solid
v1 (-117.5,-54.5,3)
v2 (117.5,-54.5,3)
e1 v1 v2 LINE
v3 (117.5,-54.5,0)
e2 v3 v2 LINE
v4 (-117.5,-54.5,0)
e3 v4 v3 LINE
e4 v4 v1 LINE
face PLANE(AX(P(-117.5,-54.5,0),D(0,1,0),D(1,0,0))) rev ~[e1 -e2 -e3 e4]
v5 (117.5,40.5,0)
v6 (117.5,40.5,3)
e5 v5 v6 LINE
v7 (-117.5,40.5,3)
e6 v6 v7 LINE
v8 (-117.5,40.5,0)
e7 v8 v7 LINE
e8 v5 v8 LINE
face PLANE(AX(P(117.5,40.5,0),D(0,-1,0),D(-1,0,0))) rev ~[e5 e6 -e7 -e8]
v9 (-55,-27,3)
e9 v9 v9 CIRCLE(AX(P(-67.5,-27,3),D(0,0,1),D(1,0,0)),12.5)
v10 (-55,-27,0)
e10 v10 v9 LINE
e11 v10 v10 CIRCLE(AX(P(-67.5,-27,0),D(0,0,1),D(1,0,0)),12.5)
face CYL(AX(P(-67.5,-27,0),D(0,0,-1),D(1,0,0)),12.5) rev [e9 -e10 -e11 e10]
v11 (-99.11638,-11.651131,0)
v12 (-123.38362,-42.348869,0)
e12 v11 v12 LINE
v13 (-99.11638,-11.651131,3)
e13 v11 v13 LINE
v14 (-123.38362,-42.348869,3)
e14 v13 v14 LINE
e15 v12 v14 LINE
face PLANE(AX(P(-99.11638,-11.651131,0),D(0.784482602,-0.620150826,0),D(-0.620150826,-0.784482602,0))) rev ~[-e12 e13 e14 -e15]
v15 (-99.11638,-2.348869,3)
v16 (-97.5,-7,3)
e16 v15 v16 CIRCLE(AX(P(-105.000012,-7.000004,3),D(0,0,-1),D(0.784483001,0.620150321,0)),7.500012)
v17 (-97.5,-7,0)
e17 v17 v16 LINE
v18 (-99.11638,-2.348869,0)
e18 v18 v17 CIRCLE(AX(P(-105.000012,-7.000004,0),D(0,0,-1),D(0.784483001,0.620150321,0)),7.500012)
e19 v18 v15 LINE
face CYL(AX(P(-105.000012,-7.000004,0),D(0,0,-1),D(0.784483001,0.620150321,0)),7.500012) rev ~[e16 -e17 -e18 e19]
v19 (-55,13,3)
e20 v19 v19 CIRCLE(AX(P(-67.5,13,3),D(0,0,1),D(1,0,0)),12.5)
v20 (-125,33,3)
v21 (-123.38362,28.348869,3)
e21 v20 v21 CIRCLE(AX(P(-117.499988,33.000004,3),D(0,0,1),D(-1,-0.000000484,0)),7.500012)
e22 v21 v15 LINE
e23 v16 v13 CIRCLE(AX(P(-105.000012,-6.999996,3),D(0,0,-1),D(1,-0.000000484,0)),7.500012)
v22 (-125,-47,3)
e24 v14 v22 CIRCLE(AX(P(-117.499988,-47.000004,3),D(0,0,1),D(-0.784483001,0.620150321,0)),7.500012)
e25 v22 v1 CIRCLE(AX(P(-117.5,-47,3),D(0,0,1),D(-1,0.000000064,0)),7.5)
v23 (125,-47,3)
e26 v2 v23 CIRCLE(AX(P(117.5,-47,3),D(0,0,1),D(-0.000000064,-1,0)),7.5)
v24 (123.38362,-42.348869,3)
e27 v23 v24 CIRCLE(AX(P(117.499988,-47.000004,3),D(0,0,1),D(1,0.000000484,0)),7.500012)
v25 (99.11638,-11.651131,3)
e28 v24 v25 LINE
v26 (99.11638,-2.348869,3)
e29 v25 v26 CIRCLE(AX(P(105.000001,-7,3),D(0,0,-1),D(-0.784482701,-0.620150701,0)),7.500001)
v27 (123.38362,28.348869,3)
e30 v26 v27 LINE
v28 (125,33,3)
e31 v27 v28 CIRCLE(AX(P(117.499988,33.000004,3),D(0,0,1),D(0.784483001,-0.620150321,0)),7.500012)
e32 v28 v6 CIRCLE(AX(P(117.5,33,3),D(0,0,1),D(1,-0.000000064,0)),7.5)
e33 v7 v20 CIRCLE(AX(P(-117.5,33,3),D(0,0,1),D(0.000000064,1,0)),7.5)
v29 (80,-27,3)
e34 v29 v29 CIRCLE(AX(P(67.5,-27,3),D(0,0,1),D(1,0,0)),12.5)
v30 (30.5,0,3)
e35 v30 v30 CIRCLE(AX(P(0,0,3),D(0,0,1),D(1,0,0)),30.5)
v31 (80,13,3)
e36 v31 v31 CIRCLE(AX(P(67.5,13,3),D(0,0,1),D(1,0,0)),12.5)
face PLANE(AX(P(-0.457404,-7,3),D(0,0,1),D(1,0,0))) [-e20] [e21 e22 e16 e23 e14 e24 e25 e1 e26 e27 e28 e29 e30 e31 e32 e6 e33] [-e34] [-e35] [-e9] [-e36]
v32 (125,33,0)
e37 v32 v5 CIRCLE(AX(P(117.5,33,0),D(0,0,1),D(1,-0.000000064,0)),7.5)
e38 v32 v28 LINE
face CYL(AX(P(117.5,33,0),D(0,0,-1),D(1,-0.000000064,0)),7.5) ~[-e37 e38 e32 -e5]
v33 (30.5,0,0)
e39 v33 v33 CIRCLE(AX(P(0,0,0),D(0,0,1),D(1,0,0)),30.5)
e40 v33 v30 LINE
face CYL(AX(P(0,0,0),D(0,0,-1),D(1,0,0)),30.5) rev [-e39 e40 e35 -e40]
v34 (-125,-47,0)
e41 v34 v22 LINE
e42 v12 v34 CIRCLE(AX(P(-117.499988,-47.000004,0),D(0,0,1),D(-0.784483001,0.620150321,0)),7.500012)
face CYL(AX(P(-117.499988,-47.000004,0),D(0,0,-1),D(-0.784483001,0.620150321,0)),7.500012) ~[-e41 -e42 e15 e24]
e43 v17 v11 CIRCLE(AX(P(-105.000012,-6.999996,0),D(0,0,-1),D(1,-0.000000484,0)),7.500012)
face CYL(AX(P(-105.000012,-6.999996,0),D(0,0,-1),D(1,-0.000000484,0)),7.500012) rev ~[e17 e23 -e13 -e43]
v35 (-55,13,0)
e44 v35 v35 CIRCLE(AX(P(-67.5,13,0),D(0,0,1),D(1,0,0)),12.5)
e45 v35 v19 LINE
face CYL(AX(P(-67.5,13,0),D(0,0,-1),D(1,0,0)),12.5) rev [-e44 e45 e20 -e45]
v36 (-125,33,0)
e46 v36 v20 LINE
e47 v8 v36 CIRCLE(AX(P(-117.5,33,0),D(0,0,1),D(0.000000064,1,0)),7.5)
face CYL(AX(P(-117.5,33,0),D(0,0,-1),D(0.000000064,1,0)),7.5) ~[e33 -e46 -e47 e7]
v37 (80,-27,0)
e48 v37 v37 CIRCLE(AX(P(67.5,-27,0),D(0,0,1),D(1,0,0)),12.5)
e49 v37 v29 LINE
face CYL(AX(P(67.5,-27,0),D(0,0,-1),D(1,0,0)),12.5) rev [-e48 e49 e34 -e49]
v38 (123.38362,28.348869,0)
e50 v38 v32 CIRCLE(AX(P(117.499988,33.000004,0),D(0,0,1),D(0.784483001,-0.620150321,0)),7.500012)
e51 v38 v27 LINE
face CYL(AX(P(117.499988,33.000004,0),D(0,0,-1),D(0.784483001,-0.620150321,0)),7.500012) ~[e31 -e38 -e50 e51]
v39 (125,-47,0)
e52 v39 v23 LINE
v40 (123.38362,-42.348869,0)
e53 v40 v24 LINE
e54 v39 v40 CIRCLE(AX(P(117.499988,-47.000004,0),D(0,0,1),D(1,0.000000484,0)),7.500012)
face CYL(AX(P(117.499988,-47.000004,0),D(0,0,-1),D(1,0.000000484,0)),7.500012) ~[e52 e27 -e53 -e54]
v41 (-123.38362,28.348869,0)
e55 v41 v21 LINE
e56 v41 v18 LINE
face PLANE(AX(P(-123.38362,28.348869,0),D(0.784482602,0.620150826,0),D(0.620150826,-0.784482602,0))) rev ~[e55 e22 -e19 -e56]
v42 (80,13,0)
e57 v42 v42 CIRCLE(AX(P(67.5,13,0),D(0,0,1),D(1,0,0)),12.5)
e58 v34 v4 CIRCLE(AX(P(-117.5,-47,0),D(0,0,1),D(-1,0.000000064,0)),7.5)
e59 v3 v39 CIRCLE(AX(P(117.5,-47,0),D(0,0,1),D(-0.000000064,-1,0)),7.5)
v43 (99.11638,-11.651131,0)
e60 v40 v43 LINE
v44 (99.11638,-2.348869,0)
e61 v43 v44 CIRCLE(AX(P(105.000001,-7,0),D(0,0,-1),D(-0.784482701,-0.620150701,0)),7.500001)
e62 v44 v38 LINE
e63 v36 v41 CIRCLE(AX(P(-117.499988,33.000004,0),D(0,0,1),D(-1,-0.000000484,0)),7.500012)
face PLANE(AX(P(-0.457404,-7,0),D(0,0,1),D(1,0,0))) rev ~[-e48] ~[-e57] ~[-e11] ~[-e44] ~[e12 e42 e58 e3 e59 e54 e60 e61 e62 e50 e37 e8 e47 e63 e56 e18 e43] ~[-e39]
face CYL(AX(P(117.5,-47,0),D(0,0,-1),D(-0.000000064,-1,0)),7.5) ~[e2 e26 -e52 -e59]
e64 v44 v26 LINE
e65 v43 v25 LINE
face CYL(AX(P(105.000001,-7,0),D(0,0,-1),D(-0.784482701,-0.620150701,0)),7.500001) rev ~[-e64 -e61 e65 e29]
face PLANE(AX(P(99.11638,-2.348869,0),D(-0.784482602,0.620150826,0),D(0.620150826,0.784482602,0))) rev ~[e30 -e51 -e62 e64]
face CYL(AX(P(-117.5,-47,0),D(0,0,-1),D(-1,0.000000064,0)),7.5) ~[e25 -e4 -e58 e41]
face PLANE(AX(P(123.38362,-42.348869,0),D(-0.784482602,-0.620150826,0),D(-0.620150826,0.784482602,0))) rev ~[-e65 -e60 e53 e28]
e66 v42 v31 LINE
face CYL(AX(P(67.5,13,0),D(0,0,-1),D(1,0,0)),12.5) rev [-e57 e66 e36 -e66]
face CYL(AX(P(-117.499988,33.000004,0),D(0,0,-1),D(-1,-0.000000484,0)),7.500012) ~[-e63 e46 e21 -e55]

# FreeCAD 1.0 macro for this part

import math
import FreeCAD as App
import Part
import Sketcher

doc = App.newDocument("Part")
body = doc.addObject("PartDesign::Body", "Body")

sketch1 = body.newObject("Sketcher::SketchObject", "Sketch")
sketch1.AttachmentSupport = (doc.getObject("XY_Plane"), [""])
sketch1.MapMode = "FlatFace"
sketch1.addGeometry(Part.LineSegment(App.Vector(-117.5, -54.5, 0), App.Vector(117.5, -54.5, 0)), False)
sketch1.addGeometry(Part.ArcOfCircle(Part.Circle(App.Vector(117.5, -47, 0), App.Vector(0, 0, 1), 7.5), math.radians(-90.000004), math.radians(0.000004)), False)
sketch1.addGeometry(Part.ArcOfCircle(Part.Circle(App.Vector(117.499988, -47.000004, 0), App.Vector(0, 0, 1), 7.500012), math.radians(0.000028), math.radians(38.327113)), False)
sketch1.addGeometry(Part.LineSegment(App.Vector(123.38362, -42.348869, 0), App.Vector(99.11638, -11.651131, 0)), False)
sketch1.addGeometry(Part.ArcOfCircle(Part.Circle(App.Vector(105.000001, -7, 0), App.Vector(0, 0, 1), 7.500001), math.radians(141.67286), math.radians(218.32714)), False)
sketch1.addGeometry(Part.LineSegment(App.Vector(99.11638, -2.348869, 0), App.Vector(123.38362, 28.348869, 0)), False)
sketch1.addGeometry(Part.ArcOfCircle(Part.Circle(App.Vector(117.499988, 33.000004, 0), App.Vector(0, 0, 1), 7.500012), math.radians(-38.327113), math.radians(-0.000028)), False)
sketch1.addGeometry(Part.ArcOfCircle(Part.Circle(App.Vector(117.5, 33, 0), App.Vector(0, 0, 1), 7.5), math.radians(-0.000004), math.radians(90.000004)), False)
sketch1.addGeometry(Part.LineSegment(App.Vector(117.5, 40.5, 0), App.Vector(-117.5, 40.5, 0)), False)
sketch1.addGeometry(Part.ArcOfCircle(Part.Circle(App.Vector(-117.5, 33, 0), App.Vector(0, 0, 1), 7.5), math.radians(89.999996), math.radians(180.000004)), False)
sketch1.addGeometry(Part.ArcOfCircle(Part.Circle(App.Vector(-117.499988, 33.000004, 0), App.Vector(0, 0, 1), 7.500012), math.radians(-179.999972), math.radians(-141.672887)), False)
sketch1.addGeometry(Part.LineSegment(App.Vector(-123.38362, 28.348869, 0), App.Vector(-99.11638, -2.348869, 0)), False)
sketch1.addGeometry(Part.ArcOfCircle(Part.Circle(App.Vector(-105.000012, -7.000004, 0), App.Vector(0, 0, 1), 7.500012), math.radians(0.000028), math.radians(38.327113)), False)
sketch1.addGeometry(Part.ArcOfCircle(Part.Circle(App.Vector(-105.000012, -6.999996, 0), App.Vector(0, 0, 1), 7.500012), math.radians(-38.327113), math.radians(-0.000028)), False)
sketch1.addGeometry(Part.LineSegment(App.Vector(-99.11638, -11.651131, 0), App.Vector(-123.38362, -42.348869, 0)), False)
sketch1.addGeometry(Part.ArcOfCircle(Part.Circle(App.Vector(-117.499988, -47.000004, 0), App.Vector(0, 0, 1), 7.500012), math.radians(141.672887), math.radians(179.999972)), False)
sketch1.addGeometry(Part.ArcOfCircle(Part.Circle(App.Vector(-117.5, -47, 0), App.Vector(0, 0, 1), 7.5), math.radians(179.999996), math.radians(270.000004)), False)
sketch1.addGeometry(Part.Circle(App.Vector(-67.5, -27, 0), App.Vector(0, 0, 1), 12.5), False)
sketch1.addGeometry(Part.Circle(App.Vector(67.5, -27, 0), App.Vector(0, 0, 1), 12.5), False)
sketch1.addGeometry(Part.Circle(App.Vector(-67.5, 13, 0), App.Vector(0, 0, 1), 12.5), False)
sketch1.addGeometry(Part.Circle(App.Vector(0, 0, 0), App.Vector(0, 0, 1), 30.5), False)
sketch1.addGeometry(Part.Circle(App.Vector(67.5, 13, 0), App.Vector(0, 0, 1), 12.5), False)
sketch1.addConstraint(Sketcher.Constraint("Tangent", 0, 2, 1, 1))
sketch1.addConstraint(Sketcher.Constraint("Tangent", 1, 2, 2, 1))
sketch1.addConstraint(Sketcher.Constraint("Tangent", 2, 2, 3, 1))
sketch1.addConstraint(Sketcher.Constraint("Tangent", 3, 2, 4, 2))
sketch1.addConstraint(Sketcher.Constraint("Tangent", 4, 1, 5, 1))
sketch1.addConstraint(Sketcher.Constraint("Tangent", 5, 2, 6, 1))
sketch1.addConstraint(Sketcher.Constraint("Tangent", 6, 2, 7, 1))
sketch1.addConstraint(Sketcher.Constraint("Tangent", 7, 2, 8, 1))
sketch1.addConstraint(Sketcher.Constraint("Tangent", 8, 2, 9, 1))
sketch1.addConstraint(Sketcher.Constraint("Tangent", 9, 2, 10, 1))
sketch1.addConstraint(Sketcher.Constraint("Tangent", 10, 2, 11, 1))
sketch1.addConstraint(Sketcher.Constraint("Tangent", 11, 2, 12, 2))
sketch1.addConstraint(Sketcher.Constraint("Tangent", 12, 1, 13, 2))
sketch1.addConstraint(Sketcher.Constraint("Tangent", 13, 1, 14, 1))
sketch1.addConstraint(Sketcher.Constraint("Tangent", 14, 2, 15, 1))
sketch1.addConstraint(Sketcher.Constraint("Tangent", 15, 2, 16, 1))
sketch1.addConstraint(Sketcher.Constraint("Tangent", 16, 2, 0, 1))
sketch1.addConstraint(Sketcher.Constraint("Horizontal", 0))
sketch1.addConstraint(Sketcher.Constraint("Horizontal", 8))
sketch1.addConstraint(Sketcher.Constraint("Coincident", 20, 3, -1, 1))
sketch1.addConstraint(Sketcher.Constraint("Equal", 1, 4))
sketch1.addConstraint(Sketcher.Constraint("Equal", 2, 6))
sketch1.addConstraint(Sketcher.Constraint("Equal", 4, 7))
sketch1.addConstraint(Sketcher.Constraint("Equal", 7, 9))
sketch1.addConstraint(Sketcher.Constraint("Equal", 6, 10))
sketch1.addConstraint(Sketcher.Constraint("Equal", 10, 12))
sketch1.addConstraint(Sketcher.Constraint("Equal", 12, 13))
sketch1.addConstraint(Sketcher.Constraint("Equal", 13, 15))
sketch1.addConstraint(Sketcher.Constraint("Equal", 9, 16))
sketch1.addConstraint(Sketcher.Constraint("Equal", 17, 18))
sketch1.addConstraint(Sketcher.Constraint("Equal", 18, 19))
sketch1.addConstraint(Sketcher.Constraint("Equal", 19, 21))
sketch1.addConstraint(Sketcher.Constraint("Symmetric", 17, 3, 18, 3, -2))
sketch1.addConstraint(Sketcher.Constraint("Symmetric", 19, 3, 21, 3, -2))
sketch1.addConstraint(Sketcher.Constraint("Symmetric", 6, 2, 9, 2, -2))
sketch1.addConstraint(Sketcher.Constraint("Symmetric", 4, 1, 11, 2, -2))
sketch1.addConstraint(Sketcher.Constraint("Symmetric", 3, 2, 13, 1, -2))
sketch1.addConstraint(Sketcher.Constraint("Parallel", 3, 11))
sketch1.addConstraint(Sketcher.Constraint("Horizontal", 16, 3, 1, 2))
sketch1.addConstraint(Sketcher.Constraint("Horizontal", 9, 3, 6, 2))
sketch1.addConstraint(Sketcher.Constraint("Horizontal", 4, 3, 12, 1))
sketch1.addConstraint(Sketcher.Constraint("Horizontal", 1, 2, 15, 2))
sketch1.addConstraint(Sketcher.Constraint("Vertical", 2, 3, 6, 3))
sketch1.addConstraint(Sketcher.Constraint("Vertical", 17, 3, 19, 3))
sketch1.addConstraint(Sketcher.Constraint("Diameter", 17, 25.0))
sketch1.addConstraint(Sketcher.Constraint("Diameter", 20, 61.0))
sketch1.addConstraint(Sketcher.Constraint("Radius", 1, 7.5))
sketch1.addConstraint(Sketcher.Constraint("DistanceX", 0, 1, 0, 2, 235.0))
sketch1.addConstraint(Sketcher.Constraint("DistanceY", 1, 3, -1, 1, 47.0))
sketch1.addConstraint(Sketcher.Constraint("DistanceX", -1, 1, 4, 3, 105.000001))
sketch1.addConstraint(Sketcher.Constraint("DistanceY", 4, 3, -1, 1, 7.0))
sketch1.addConstraint(Sketcher.Constraint("DistanceY", 17, 3, -1, 1, 27.0))
sketch1.addConstraint(Sketcher.Constraint("DistanceY", -1, 1, 19, 3, 13.0))
sketch1.addConstraint(Sketcher.Constraint("DistanceX", 16, 3, 17, 3, 50.0))
pad1 = body.newObject("PartDesign::Pad", "Pad")
pad1.Profile = sketch1
pad1.Length = 3

doc.recompute()
